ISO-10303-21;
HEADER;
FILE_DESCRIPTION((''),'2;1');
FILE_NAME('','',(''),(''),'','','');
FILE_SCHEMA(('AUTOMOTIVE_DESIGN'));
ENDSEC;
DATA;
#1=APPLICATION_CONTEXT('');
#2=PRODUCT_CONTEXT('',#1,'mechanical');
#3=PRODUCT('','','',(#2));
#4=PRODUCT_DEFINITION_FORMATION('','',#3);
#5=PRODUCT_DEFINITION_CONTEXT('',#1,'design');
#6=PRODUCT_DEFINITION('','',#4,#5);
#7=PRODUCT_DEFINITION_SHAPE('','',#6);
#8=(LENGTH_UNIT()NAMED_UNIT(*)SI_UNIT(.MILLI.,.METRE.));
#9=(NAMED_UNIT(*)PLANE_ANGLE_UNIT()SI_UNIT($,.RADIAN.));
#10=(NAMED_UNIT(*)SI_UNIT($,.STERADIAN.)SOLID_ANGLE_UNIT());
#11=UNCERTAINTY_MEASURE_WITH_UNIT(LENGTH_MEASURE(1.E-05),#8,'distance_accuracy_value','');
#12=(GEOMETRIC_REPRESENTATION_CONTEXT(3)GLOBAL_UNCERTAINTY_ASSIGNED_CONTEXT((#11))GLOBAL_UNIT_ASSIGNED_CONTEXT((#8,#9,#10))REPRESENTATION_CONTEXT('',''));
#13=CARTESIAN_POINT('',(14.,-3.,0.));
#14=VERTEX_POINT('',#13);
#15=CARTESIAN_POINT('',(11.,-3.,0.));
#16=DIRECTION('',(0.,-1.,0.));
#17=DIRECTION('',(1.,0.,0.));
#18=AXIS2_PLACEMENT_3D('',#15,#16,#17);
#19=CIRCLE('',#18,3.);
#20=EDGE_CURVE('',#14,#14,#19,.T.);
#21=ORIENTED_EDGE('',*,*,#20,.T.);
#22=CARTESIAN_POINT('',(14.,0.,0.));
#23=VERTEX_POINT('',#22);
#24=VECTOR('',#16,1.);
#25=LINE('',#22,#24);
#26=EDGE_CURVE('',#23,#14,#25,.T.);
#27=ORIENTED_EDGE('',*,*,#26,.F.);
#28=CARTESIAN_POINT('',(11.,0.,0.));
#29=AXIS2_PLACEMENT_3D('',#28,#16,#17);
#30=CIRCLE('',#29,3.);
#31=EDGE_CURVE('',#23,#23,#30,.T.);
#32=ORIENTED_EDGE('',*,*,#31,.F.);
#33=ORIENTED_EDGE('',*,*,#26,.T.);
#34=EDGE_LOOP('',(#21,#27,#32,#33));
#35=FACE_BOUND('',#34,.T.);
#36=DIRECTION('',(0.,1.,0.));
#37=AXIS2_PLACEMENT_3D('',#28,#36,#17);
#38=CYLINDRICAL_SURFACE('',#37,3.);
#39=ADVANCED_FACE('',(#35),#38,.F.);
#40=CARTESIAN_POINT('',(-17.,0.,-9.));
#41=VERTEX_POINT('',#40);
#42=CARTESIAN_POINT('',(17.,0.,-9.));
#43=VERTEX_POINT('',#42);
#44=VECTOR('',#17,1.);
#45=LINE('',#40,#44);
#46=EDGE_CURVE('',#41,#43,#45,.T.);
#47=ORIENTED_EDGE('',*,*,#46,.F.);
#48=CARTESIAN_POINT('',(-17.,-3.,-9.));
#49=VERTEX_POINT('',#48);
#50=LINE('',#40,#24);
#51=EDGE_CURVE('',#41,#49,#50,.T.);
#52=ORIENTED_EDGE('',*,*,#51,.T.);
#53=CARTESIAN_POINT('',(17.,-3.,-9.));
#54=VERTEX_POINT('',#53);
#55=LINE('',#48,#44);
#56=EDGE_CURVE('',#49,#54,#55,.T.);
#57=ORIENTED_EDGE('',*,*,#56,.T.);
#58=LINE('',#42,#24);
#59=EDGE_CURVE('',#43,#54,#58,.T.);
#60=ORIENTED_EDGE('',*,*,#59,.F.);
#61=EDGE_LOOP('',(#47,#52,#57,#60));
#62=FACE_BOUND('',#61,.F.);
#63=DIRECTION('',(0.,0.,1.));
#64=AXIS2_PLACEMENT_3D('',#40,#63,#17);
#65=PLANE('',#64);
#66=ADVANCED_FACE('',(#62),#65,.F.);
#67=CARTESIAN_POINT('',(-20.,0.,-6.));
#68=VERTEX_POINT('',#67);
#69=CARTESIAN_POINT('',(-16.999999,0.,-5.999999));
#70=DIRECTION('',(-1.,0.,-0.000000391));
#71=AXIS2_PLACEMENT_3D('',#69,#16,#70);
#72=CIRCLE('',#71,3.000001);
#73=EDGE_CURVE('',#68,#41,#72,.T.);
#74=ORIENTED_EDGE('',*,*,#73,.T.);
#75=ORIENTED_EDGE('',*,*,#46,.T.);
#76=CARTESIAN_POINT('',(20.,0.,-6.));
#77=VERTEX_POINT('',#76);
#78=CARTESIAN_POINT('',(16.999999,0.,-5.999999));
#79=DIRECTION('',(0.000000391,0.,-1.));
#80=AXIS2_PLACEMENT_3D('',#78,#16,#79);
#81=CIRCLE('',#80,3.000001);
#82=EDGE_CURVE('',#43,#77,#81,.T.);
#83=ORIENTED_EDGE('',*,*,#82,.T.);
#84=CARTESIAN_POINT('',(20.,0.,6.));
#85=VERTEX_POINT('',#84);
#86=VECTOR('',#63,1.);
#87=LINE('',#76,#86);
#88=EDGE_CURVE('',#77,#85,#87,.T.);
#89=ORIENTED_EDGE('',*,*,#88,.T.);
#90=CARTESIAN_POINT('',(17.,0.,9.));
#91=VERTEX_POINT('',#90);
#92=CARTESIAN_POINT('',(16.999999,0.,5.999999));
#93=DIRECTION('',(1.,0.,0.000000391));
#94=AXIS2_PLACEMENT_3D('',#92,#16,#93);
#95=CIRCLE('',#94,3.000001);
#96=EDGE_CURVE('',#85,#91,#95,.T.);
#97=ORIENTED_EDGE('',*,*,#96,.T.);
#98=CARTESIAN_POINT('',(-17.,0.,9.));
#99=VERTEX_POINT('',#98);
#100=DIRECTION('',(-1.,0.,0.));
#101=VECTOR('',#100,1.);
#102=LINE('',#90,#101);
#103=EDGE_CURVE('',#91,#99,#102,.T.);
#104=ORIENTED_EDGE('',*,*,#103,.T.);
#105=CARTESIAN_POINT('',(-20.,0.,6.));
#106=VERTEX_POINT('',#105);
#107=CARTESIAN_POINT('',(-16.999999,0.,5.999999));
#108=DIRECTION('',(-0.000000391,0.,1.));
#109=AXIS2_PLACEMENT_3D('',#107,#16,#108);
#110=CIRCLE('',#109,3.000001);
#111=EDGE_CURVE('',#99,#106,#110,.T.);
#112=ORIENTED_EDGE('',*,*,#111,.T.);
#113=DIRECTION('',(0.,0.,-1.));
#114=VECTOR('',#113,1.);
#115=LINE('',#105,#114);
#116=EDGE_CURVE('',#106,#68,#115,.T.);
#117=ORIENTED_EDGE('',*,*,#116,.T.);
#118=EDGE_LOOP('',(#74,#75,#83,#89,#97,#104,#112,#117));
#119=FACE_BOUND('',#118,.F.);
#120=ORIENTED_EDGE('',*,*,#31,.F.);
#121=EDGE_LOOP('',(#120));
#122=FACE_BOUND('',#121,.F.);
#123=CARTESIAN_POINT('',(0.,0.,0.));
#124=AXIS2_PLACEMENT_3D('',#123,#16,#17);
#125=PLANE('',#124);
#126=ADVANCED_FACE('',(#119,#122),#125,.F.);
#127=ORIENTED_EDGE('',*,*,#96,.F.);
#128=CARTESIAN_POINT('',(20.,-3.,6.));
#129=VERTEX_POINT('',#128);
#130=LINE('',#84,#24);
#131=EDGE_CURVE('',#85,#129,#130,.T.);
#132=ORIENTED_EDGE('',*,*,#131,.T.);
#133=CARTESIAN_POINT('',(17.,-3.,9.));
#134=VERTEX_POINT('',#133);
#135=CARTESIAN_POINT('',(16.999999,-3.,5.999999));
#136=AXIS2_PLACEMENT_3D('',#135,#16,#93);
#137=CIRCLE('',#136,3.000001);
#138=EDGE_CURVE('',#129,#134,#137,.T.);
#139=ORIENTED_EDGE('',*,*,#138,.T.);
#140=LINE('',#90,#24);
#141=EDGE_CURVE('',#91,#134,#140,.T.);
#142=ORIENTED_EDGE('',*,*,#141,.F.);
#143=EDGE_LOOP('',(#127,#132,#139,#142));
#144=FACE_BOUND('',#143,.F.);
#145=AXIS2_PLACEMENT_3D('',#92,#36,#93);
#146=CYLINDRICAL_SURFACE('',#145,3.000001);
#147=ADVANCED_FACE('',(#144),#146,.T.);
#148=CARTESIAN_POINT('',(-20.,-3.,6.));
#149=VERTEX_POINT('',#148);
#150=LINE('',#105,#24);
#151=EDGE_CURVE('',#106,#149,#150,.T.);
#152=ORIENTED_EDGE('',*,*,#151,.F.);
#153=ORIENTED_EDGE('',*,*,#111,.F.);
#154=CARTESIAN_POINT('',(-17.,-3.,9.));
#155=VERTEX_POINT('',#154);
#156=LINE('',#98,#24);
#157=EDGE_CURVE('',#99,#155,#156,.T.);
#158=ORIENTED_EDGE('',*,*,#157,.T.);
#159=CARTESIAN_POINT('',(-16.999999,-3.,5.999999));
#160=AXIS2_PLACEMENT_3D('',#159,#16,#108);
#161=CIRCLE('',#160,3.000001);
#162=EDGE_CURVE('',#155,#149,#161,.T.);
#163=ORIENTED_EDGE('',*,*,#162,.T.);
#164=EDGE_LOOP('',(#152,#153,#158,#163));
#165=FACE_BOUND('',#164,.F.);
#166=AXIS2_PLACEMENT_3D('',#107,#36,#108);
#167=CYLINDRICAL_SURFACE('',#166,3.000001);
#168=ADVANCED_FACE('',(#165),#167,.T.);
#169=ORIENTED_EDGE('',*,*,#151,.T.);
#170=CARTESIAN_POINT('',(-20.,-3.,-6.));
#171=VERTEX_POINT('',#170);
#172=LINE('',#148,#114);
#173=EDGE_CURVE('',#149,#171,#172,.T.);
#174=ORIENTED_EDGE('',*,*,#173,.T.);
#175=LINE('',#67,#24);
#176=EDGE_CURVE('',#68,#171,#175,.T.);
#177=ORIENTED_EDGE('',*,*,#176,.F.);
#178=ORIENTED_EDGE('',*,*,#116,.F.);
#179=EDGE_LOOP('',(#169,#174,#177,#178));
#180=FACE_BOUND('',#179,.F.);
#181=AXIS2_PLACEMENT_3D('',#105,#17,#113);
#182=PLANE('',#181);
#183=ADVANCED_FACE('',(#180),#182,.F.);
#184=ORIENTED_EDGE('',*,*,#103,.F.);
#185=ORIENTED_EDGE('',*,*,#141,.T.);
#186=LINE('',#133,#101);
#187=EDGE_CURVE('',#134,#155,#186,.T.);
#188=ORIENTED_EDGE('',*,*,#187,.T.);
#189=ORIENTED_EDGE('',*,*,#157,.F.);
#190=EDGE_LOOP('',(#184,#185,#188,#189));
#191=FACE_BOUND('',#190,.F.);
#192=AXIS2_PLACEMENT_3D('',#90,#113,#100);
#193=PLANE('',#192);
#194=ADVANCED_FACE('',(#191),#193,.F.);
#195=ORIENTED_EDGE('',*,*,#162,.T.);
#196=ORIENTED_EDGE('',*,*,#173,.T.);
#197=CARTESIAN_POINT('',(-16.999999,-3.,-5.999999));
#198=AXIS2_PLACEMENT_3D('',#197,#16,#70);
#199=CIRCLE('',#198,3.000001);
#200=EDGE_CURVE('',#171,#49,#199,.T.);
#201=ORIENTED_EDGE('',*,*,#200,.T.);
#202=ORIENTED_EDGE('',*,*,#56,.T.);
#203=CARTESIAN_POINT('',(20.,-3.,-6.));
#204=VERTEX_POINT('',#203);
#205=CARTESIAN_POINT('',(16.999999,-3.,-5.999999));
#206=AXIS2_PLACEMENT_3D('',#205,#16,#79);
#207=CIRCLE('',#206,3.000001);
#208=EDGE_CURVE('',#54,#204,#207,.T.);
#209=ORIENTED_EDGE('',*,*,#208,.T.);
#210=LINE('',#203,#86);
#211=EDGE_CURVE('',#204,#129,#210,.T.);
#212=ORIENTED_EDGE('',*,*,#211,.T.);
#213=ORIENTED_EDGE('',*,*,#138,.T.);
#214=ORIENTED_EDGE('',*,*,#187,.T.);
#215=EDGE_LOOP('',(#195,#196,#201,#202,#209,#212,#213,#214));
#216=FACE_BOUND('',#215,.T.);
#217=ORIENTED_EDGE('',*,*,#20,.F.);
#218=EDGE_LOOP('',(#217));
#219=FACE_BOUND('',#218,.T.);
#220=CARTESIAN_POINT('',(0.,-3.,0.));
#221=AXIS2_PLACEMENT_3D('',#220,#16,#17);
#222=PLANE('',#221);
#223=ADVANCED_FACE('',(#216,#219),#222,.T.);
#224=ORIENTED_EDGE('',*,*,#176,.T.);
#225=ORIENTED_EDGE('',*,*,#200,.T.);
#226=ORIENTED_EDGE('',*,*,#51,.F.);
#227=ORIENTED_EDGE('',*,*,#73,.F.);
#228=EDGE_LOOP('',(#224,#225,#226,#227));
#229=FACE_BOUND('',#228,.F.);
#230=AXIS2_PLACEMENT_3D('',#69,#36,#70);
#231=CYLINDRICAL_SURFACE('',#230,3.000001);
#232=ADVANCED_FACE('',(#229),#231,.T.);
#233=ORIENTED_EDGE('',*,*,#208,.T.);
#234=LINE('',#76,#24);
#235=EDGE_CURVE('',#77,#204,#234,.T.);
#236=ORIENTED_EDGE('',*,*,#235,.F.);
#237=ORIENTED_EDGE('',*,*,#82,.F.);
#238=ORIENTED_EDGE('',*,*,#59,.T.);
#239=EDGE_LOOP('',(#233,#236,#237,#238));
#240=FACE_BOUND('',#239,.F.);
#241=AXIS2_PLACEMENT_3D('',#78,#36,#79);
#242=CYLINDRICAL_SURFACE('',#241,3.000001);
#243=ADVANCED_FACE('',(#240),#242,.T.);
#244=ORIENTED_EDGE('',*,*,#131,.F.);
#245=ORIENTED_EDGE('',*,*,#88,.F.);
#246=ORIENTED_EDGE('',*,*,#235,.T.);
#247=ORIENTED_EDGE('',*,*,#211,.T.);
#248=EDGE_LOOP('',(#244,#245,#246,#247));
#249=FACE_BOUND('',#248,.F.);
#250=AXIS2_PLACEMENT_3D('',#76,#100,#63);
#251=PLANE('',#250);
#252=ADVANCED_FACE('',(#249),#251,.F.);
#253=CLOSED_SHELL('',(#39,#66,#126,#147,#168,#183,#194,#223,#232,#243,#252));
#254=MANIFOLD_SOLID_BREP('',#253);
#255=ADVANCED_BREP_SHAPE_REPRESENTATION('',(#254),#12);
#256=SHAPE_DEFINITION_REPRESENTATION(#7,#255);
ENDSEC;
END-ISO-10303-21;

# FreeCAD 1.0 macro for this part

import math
import FreeCAD as App
import Part
import Sketcher
from FreeCAD import Vector
Q = App.Units.Quantity

doc = App.newDocument("Part")
body = doc.addObject("PartDesign::Body", "Body")

sketch1 = body.newObject("Sketcher::SketchObject", "Sketch")
sketch1.AttachmentSupport = (doc.getObject("XZ_Plane"), [""])
sketch1.MapMode = "FlatFace"
sketch1.addGeometry(Part.LineSegment(Vector(-17, -9, 0), Vector(17, -9, 0)), False)
sketch1.addGeometry(Part.ArcOfCircle(Part.Circle(Vector(17, -6, 0), Vector(0, 0, 1), 3), math.radians(-90), math.radians(0)), False)
sketch1.addGeometry(Part.LineSegment(Vector(20, -6, 0), Vector(20, 6, 0)), False)
sketch1.addGeometry(Part.ArcOfCircle(Part.Circle(Vector(17, 6, 0), Vector(0, 0, 1), 3), math.radians(0), math.radians(90)), False)
sketch1.addGeometry(Part.LineSegment(Vector(17, 9, 0), Vector(-17, 9, 0)), False)
sketch1.addGeometry(Part.ArcOfCircle(Part.Circle(Vector(-17, 6, 0), Vector(0, 0, 1), 3), math.radians(90), math.radians(180)), False)
sketch1.addGeometry(Part.LineSegment(Vector(-20, 6, 0), Vector(-20, -6, 0)), False)
sketch1.addGeometry(Part.ArcOfCircle(Part.Circle(Vector(-17, -6, 0), Vector(0, 0, 1), 3), math.radians(-180), math.radians(-90)), False)
sketch1.addGeometry(Part.Circle(Vector(11, 0, 0), Vector(0, 0, 1), 3), False)
sketch1.addConstraint(Sketcher.Constraint("Tangent", 0, 2, 1, 1))
sketch1.addConstraint(Sketcher.Constraint("Tangent", 1, 2, 2, 1))
sketch1.addConstraint(Sketcher.Constraint("Tangent", 2, 2, 3, 1))
sketch1.addConstraint(Sketcher.Constraint("Tangent", 3, 2, 4, 1))
sketch1.addConstraint(Sketcher.Constraint("Tangent", 4, 2, 5, 1))
sketch1.addConstraint(Sketcher.Constraint("Tangent", 5, 2, 6, 1))
sketch1.addConstraint(Sketcher.Constraint("Tangent", 6, 2, 7, 1))
sketch1.addConstraint(Sketcher.Constraint("Tangent", 7, 2, 0, 1))
sketch1.addConstraint(Sketcher.Constraint("Horizontal", 0))
sketch1.addConstraint(Sketcher.Constraint("Vertical", 2))
sketch1.addConstraint(Sketcher.Constraint("Horizontal", 4))
sketch1.addConstraint(Sketcher.Constraint("Vertical", 6))
sketch1.addConstraint(Sketcher.Constraint("Equal", 1, 3))
sketch1.addConstraint(Sketcher.Constraint("Equal", 3, 5))
sketch1.addConstraint(Sketcher.Constraint("Equal", 5, 7))
sketch1.addConstraint(Sketcher.Constraint("Equal", 7, 8))
sketch1.addConstraint(Sketcher.Constraint("Symmetric", 1, 3, 5, 3, -1, 1))
sketch1.addConstraint(Sketcher.Constraint("PointOnObject", 8, 3, -1))
sketch1.addConstraint(Sketcher.Constraint("Diameter", 8, Q("6 mm")))
sketch1.addConstraint(Sketcher.Constraint("DistanceX", 0, 1, 0, 2, Q("34 mm")))
sketch1.addConstraint(Sketcher.Constraint("DistanceY", 2, 1, 2, 2, Q("12 mm")))
sketch1.addConstraint(Sketcher.Constraint("DistanceX", -1, 1, 8, 3, Q("11 mm")))
pad1 = body.newObject("PartDesign::Pad", "Pad")
pad1.Profile = sketch1
pad1.Length = 3

doc.recompute()
